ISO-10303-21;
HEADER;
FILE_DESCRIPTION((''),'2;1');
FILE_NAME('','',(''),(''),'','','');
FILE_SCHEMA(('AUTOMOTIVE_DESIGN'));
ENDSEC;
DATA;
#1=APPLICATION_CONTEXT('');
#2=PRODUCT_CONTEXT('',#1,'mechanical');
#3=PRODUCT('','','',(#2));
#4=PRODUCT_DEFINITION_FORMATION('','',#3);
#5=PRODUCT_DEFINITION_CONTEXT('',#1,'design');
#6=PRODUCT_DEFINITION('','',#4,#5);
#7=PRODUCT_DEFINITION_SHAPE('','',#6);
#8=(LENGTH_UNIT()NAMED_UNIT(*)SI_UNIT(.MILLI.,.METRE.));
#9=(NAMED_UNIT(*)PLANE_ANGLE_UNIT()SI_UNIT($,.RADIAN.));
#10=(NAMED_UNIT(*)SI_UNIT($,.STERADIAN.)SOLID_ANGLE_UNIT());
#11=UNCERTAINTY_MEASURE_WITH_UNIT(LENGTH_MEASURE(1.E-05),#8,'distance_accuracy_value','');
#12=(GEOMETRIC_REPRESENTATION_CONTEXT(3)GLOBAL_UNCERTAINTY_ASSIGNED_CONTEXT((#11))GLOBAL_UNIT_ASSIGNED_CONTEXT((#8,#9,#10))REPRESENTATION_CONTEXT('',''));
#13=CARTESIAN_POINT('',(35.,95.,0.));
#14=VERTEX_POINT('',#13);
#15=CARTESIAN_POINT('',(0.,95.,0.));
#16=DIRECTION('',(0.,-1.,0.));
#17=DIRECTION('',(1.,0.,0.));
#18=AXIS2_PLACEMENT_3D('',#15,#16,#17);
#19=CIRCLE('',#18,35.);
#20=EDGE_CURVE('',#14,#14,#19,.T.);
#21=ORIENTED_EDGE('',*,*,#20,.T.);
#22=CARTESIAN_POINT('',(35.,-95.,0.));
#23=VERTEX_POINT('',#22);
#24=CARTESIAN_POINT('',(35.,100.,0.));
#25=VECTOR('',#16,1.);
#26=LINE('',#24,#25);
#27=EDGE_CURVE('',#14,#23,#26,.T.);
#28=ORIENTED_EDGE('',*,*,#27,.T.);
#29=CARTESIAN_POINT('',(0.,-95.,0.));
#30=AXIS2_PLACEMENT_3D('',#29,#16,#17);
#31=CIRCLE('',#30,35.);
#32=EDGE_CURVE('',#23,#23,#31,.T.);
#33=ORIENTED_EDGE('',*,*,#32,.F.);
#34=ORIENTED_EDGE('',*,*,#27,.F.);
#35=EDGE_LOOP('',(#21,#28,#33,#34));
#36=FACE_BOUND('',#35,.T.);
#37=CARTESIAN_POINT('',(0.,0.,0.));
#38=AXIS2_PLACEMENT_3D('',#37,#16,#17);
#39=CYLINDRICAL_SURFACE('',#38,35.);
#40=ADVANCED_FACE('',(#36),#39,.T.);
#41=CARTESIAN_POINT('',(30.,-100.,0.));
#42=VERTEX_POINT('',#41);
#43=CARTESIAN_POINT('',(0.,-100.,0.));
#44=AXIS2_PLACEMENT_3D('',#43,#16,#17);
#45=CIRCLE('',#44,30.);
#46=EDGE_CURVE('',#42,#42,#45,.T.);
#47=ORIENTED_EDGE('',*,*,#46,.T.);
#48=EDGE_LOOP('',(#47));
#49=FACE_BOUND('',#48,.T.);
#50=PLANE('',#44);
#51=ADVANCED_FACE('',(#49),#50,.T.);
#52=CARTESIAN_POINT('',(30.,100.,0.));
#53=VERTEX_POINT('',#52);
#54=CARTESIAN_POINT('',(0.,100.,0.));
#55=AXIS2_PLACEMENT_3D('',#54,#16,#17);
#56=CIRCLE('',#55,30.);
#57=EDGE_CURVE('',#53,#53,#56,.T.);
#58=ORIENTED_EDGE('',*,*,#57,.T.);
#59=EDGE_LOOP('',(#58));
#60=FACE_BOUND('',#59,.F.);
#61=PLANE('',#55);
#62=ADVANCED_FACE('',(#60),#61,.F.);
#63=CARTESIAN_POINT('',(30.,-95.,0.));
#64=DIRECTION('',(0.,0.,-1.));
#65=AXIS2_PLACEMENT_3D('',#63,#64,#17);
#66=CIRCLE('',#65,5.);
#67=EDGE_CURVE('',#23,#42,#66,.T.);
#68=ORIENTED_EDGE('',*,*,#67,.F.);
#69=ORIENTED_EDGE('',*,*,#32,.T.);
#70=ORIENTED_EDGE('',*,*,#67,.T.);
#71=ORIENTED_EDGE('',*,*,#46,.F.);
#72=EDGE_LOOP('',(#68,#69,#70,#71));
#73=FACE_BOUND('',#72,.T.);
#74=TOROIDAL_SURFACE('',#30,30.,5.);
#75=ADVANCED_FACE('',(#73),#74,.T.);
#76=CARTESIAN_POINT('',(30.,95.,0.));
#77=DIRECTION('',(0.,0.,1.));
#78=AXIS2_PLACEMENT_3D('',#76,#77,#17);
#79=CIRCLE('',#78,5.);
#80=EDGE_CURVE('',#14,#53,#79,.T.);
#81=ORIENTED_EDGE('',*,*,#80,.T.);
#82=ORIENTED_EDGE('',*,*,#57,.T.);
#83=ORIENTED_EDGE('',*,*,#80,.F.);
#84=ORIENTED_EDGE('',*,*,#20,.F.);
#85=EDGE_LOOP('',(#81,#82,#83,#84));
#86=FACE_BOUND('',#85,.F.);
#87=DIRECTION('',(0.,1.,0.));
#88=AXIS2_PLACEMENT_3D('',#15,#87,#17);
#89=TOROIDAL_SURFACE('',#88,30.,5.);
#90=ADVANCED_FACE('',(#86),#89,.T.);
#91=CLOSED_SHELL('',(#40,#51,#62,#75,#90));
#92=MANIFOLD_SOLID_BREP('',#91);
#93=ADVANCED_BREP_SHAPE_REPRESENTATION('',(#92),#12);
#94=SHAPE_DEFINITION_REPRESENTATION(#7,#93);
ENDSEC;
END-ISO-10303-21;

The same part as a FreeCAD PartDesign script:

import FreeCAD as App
import Part
import Sketcher

V = App.Vector


def edges_at(feature, points):
    """Names of the edges that pass closest to the given points."""
    edges = feature.Shape.Edges
    near = lambda p: min(range(len(edges)), key=lambda i: edges[i].distToShape(Part.Vertex(*p))[0])
    return sorted({f"Edge{near(p) + 1}" for p in points})

doc = App.newDocument("Part")
body = doc.addObject("PartDesign::Body", "Body")

# Sketch on XZ plane
sketch1 = body.newObject("Sketcher::SketchObject", "Sketch")
sketch1.AttachmentSupport = (doc.getObject("XZ_Plane"), [""])
sketch1.MapMode = "FlatFace"
sketch1.addGeometry(Part.Circle(V(0, 0, 0), V(0, 0, 1), 35), False)
sketch1.addConstraint([
    Sketcher.Constraint("Coincident", 0, 3, -1, 1),
    Sketcher.Constraint("Diameter", 0, 70.0),
])
pad1 = body.newObject("PartDesign::Pad", "Pad")
pad1.Profile = sketch1
pad1.Type = "TwoLengths"
pad1.Length = 100
pad1.Length2 = 100
doc.recompute()

fillet = body.newObject("PartDesign::Fillet", "Fillet")
fillet.Base = (pad1, edges_at(pad1, [(-35, -100, 0), (-35, 100, 0)]))
fillet.Radius = 5

doc.recompute()
